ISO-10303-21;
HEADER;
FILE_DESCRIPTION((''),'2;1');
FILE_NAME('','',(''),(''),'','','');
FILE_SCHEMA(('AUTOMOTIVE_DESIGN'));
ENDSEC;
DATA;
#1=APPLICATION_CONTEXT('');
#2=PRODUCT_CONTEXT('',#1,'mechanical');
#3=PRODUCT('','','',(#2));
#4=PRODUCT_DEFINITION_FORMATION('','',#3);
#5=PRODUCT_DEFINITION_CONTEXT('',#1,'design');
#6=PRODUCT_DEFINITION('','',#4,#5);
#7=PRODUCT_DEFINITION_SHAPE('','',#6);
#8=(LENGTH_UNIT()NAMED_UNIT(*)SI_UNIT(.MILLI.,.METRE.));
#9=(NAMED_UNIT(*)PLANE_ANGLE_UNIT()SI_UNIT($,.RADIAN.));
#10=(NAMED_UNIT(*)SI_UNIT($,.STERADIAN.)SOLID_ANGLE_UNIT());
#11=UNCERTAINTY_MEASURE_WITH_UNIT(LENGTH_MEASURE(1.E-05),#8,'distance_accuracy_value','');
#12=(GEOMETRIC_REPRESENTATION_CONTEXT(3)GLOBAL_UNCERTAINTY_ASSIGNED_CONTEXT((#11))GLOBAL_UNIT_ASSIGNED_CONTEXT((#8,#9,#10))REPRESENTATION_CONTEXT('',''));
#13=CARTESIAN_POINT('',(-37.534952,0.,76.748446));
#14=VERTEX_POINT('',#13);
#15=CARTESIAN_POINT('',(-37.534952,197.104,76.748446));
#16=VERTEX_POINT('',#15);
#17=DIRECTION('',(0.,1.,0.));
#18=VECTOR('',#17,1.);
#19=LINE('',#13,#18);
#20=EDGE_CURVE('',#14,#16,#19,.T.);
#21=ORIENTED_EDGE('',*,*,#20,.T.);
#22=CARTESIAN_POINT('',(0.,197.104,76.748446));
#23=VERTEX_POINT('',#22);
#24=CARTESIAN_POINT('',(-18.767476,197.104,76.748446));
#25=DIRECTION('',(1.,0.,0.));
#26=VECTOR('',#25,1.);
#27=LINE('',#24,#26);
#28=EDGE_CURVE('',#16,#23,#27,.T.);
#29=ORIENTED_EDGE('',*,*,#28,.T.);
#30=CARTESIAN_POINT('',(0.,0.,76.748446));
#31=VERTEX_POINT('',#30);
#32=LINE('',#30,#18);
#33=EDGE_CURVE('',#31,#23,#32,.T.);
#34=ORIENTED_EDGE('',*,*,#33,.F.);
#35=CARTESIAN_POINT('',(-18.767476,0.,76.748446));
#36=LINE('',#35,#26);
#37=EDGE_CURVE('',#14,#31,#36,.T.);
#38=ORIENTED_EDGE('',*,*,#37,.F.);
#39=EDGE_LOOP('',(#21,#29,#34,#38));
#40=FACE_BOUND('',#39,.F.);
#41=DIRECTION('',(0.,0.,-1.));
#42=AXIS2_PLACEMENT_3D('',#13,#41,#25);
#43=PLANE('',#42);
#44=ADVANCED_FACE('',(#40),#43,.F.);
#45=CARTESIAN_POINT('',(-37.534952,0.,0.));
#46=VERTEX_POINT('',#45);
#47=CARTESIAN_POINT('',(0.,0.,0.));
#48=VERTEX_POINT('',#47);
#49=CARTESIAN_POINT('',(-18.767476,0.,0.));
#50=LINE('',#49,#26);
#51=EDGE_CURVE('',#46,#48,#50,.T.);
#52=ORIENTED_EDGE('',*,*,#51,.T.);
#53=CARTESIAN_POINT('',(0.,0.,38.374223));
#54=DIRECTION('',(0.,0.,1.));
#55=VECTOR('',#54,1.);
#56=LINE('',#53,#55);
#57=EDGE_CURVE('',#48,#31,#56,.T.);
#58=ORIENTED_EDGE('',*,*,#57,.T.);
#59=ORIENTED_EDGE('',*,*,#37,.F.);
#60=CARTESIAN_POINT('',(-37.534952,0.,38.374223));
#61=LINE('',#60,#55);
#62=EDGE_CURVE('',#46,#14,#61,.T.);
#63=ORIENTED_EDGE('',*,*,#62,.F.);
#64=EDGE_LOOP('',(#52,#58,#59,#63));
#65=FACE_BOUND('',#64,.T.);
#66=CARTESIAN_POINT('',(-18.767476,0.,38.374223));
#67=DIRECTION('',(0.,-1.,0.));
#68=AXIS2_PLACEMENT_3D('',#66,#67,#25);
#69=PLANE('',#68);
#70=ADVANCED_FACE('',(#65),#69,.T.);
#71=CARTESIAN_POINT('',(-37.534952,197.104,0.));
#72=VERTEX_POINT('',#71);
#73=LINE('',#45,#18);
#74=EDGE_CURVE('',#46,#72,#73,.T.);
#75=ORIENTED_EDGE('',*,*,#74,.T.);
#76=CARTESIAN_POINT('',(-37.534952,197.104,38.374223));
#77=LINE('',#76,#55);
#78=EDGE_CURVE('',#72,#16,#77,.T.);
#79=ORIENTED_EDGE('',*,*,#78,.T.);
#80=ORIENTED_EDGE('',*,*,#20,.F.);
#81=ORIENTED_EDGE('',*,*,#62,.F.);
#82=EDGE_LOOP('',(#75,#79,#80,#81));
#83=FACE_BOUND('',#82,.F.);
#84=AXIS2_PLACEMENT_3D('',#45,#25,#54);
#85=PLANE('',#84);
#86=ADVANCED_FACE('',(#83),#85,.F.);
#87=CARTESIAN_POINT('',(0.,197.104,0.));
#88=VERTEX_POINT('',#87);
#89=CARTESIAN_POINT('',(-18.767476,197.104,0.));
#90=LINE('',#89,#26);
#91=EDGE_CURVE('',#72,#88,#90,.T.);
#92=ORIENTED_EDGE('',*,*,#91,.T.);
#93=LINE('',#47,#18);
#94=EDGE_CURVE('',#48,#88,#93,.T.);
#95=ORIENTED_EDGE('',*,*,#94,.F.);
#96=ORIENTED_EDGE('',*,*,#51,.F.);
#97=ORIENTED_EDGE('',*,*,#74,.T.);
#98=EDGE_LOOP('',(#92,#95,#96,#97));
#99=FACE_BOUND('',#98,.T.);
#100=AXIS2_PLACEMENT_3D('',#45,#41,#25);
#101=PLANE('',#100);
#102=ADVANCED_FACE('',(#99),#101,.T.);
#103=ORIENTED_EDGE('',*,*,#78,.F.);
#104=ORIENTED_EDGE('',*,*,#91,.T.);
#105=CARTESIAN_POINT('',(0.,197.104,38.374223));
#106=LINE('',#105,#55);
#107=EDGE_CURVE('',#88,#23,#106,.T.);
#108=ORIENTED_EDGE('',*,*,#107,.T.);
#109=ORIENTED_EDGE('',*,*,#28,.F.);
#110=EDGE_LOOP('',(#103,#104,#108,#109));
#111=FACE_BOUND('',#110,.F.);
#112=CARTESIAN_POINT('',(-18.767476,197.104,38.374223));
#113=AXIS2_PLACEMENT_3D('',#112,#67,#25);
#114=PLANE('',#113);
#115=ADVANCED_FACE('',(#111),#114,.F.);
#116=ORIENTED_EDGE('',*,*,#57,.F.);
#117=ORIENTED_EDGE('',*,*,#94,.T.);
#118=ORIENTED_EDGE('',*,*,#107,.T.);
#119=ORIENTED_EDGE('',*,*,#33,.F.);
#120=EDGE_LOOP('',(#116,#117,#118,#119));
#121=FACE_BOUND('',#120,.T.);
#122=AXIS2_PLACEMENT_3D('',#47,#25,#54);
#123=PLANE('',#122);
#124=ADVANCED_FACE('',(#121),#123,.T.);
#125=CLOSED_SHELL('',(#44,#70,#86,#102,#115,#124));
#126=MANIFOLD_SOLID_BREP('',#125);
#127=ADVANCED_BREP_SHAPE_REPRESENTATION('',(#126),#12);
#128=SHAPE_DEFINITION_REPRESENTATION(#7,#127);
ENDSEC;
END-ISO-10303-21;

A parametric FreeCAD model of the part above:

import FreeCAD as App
import Part
import Sketcher

V = App.Vector
Q = App.Units.Quantity


def add_polygon(sketch, points):
    """Adds a closed chain of lines whose ends are joined by coincident constraints."""
    first, n = sketch.GeometryCount, len(points)
    for a, b in zip(points, points[1:] + points[:1]):
        sketch.addGeometry(Part.LineSegment(App.Vector(*a, 0), App.Vector(*b, 0)), False)
    for i in range(n):
        sketch.addConstraint(Sketcher.Constraint("Coincident", first + i, 2, first + (i + 1) % n, 1))

doc = App.newDocument("Part")
params = doc.addObject("Spreadsheet::Sheet", "Params")
for row, (alias, value) in enumerate([
    ("pad1_length", "7.76 in"),
    ("pad2_length", "7.73 in"),
], start=1):
    params.set(f"A{row}", alias)
    params.set(f"B{row}", "=" + value)
    params.setAlias(f"B{row}", alias)

body = doc.addObject("PartDesign::Body", "Body")

# Sketch on XZ plane
sketch1 = body.newObject("Sketcher::SketchObject", "Sketch")
sketch1.AttachmentSupport = (doc.getObject("XZ_Plane"), [""])
sketch1.MapMode = "FlatFace"
add_polygon(sketch1, [(-38, 77), (-38, 0), (0, 0), (0, 77)])  # lines 0-3
sketch1.addConstraint(Sketcher.Constraint("Vertical", 0))
sketch1.addConstraint(Sketcher.Constraint("Horizontal", 1))
sketch1.addConstraint(Sketcher.Constraint("Vertical", 2))
sketch1.addConstraint(Sketcher.Constraint("Horizontal", 3))
sketch1.addConstraint(Sketcher.Constraint("Coincident", 1, 2, -1, 1))
sketch1.addConstraint(Sketcher.Constraint("DistanceX", 1, 1, 1, 2, Q("37.534952 mm")))
sketch1.addConstraint(Sketcher.Constraint("DistanceY", 0, 2, 0, 1, Q("76.748446 mm")))
pad1 = body.newObject("PartDesign::Pad", "Pad")
pad1.Profile = sketch1
pad1.setExpression("Length", "Params.pad1_length")
pad1.Reversed = True
body2 = doc.addObject("PartDesign::Body", "Body001")

# Sketch on XZ plane
sketch2 = body2.newObject("Sketcher::SketchObject", "Sketch001")
sketch2.AttachmentSupport = (doc.getObject("XZ_Plane001"), [""])
sketch2.MapMode = "FlatFace"
sketch2.addGeometry(Part.Circle(V(-67, 84, 0), V(0, 0, 1), 24), False)
sketch2.addConstraint(Sketcher.Constraint("Diameter", 0, Q("47.15294 mm")))
sketch2.addConstraint(Sketcher.Constraint("DistanceY", -1, 1, 0, 3, Q("83.592579 mm")))
sketch2.addConstraint(Sketcher.Constraint("DistanceX", 0, 3, -1, 1, Q("66.800937 mm")))
pad2 = body2.newObject("PartDesign::Pad", "Pad001")
pad2.Profile = sketch2
pad2.setExpression("Length", "Params.pad2_length")
pad2.Reversed = True
body2.Visibility = False

doc.recompute()
